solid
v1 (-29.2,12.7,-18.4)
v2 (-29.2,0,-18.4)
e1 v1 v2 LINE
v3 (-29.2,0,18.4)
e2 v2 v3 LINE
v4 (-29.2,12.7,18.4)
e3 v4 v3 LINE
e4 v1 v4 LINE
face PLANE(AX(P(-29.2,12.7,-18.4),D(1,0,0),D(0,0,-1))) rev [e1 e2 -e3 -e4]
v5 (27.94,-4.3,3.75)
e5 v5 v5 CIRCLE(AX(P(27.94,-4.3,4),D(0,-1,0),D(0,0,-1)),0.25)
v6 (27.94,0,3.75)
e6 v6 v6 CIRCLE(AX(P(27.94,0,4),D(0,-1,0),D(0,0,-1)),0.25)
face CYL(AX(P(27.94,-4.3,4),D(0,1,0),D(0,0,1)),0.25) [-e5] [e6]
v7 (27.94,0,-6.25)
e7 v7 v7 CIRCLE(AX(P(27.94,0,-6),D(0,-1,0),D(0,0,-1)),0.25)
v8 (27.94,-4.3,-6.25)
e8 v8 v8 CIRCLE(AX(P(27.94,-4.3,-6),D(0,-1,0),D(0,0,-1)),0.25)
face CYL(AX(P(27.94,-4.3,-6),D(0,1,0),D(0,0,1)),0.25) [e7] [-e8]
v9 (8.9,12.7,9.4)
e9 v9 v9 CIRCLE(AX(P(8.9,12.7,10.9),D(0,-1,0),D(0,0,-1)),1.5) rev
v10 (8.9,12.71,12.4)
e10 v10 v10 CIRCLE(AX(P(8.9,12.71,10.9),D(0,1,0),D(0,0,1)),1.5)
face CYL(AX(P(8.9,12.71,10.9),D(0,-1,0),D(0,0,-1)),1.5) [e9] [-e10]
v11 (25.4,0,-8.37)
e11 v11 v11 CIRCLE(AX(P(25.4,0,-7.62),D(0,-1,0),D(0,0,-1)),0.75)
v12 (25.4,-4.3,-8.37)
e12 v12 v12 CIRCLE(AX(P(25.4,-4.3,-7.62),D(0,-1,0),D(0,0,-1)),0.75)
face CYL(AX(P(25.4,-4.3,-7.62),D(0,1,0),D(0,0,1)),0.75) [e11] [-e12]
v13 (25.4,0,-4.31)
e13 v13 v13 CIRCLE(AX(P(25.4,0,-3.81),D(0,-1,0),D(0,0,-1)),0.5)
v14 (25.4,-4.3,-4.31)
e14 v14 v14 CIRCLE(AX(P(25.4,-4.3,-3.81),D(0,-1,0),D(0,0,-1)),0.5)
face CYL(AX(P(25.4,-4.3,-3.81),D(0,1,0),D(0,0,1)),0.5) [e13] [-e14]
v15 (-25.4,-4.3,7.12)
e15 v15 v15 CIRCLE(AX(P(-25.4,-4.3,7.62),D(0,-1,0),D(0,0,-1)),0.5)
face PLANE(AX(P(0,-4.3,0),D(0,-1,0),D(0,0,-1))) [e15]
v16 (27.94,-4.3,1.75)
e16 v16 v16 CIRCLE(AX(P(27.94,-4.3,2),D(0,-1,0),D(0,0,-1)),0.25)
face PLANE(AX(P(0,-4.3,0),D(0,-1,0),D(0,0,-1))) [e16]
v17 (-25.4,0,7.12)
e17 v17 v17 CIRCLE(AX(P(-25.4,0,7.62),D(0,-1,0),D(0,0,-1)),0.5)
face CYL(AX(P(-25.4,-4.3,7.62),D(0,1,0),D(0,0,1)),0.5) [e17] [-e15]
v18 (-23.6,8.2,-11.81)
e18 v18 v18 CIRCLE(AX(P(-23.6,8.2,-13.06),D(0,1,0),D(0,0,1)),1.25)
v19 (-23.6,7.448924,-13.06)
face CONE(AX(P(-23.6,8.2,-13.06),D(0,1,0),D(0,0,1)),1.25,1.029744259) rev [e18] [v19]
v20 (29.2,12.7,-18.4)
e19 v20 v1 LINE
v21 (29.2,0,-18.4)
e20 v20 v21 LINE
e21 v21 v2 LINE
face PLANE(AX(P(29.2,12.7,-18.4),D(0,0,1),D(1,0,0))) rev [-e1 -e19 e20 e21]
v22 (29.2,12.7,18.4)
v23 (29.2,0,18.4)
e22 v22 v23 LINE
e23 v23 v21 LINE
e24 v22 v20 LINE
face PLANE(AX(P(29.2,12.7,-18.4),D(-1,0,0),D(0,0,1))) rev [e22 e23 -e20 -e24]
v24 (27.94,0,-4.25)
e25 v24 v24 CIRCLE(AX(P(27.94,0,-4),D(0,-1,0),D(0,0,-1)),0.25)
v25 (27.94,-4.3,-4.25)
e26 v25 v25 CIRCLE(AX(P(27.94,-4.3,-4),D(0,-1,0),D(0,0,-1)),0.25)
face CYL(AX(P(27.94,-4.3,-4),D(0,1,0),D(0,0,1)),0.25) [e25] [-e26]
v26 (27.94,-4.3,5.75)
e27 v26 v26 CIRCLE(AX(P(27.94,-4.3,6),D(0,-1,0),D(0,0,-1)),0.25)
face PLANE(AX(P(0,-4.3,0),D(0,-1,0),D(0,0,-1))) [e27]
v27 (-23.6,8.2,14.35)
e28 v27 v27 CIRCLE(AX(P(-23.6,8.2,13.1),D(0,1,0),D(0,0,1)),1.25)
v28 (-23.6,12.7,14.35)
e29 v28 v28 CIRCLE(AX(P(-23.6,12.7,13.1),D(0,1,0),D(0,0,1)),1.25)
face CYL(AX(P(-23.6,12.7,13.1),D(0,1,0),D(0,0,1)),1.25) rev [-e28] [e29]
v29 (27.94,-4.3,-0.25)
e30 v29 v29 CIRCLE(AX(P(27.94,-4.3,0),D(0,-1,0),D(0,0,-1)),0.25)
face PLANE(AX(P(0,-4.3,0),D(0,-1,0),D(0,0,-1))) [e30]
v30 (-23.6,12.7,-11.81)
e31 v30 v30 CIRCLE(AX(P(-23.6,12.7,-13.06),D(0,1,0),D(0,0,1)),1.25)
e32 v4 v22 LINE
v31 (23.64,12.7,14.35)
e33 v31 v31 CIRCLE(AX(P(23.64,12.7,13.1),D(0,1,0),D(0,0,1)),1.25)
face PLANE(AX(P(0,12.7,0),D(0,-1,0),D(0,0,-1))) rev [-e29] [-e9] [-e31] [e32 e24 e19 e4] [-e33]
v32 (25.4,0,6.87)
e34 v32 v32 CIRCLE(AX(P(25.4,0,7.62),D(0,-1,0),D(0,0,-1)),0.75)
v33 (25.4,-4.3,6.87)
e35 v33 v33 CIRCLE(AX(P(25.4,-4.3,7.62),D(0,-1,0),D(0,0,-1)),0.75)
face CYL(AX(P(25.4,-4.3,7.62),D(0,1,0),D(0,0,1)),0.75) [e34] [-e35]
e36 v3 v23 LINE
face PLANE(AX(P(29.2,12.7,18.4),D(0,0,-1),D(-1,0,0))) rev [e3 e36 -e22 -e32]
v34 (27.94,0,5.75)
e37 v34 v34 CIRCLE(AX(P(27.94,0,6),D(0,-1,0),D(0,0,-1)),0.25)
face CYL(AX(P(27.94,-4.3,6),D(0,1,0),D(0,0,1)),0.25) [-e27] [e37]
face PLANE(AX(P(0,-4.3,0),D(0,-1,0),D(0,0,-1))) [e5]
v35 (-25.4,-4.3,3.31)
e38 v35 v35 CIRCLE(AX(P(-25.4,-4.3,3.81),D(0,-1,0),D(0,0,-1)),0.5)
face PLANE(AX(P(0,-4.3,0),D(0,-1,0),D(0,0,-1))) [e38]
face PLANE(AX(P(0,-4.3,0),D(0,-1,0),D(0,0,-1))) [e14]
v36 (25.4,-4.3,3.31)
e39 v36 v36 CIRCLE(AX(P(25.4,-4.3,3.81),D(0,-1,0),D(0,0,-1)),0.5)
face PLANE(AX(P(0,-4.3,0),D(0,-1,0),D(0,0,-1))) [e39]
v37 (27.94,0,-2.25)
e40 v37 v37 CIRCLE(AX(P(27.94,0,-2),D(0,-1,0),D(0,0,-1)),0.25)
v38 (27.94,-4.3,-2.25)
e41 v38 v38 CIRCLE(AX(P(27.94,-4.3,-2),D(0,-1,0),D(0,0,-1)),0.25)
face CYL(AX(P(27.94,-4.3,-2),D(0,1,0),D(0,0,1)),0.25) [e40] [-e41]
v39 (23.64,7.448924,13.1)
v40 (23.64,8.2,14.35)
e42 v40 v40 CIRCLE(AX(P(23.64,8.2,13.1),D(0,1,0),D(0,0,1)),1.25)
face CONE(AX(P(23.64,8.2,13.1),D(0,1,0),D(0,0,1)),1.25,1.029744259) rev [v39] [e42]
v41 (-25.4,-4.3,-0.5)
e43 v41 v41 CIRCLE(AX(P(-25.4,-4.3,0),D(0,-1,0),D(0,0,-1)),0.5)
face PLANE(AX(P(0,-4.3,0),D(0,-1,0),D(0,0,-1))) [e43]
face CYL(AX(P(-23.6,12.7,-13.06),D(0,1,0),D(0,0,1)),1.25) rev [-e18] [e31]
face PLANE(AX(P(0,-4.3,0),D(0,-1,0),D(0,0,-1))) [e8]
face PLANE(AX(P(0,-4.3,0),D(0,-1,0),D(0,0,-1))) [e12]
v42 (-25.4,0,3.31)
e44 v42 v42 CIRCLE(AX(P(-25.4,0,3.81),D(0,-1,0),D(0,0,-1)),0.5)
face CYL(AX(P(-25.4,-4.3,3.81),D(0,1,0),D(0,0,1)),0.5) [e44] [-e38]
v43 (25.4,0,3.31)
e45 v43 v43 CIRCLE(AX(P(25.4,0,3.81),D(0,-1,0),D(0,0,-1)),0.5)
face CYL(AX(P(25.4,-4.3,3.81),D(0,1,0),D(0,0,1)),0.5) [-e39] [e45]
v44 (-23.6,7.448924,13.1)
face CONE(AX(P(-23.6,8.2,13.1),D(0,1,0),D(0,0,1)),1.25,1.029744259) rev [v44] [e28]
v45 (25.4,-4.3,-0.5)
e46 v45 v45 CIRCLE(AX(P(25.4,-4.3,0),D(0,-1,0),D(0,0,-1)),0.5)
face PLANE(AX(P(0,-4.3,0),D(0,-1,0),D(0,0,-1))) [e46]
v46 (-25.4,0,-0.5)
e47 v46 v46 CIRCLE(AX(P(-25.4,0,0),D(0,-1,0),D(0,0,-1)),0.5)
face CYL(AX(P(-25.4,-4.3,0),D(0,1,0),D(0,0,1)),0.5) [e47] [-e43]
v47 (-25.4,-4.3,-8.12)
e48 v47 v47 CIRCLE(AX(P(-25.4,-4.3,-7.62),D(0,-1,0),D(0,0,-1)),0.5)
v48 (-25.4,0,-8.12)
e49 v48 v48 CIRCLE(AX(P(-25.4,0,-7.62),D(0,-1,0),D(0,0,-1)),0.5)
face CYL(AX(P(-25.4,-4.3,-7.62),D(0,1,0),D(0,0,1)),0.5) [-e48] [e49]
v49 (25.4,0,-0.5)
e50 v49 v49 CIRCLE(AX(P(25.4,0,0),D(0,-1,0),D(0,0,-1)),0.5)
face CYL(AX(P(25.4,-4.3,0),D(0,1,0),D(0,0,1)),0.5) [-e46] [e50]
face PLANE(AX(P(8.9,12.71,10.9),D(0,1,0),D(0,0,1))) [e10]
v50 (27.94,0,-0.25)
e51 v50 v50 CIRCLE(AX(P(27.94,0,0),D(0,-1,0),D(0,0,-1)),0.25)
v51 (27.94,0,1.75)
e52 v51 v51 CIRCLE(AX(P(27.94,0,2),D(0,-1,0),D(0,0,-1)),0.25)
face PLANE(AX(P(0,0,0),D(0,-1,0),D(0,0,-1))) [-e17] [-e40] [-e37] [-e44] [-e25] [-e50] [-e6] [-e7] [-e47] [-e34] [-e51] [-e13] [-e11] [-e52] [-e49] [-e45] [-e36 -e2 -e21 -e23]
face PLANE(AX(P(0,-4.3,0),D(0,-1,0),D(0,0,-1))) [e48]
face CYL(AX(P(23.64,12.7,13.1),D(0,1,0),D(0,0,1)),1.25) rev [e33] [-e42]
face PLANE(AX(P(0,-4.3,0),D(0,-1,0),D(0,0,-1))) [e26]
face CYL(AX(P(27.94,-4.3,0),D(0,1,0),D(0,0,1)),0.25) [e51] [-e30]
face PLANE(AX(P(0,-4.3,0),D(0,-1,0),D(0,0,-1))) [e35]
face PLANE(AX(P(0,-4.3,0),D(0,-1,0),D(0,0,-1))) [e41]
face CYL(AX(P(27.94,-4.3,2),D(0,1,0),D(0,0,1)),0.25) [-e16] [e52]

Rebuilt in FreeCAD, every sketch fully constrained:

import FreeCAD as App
import Part
import Sketcher

V = App.Vector


def add_polygon(sketch, points):
    """Adds a closed chain of lines whose ends are joined by coincident constraints."""
    first, n = sketch.GeometryCount, len(points)
    for a, b in zip(points, points[1:] + points[:1]):
        sketch.addGeometry(Part.LineSegment(App.Vector(*a, 0), App.Vector(*b, 0)), False)
    for i in range(n):
        sketch.addConstraint(Sketcher.Constraint("Coincident", first + i, 2, first + (i + 1) % n, 1))

doc = App.newDocument("Part")
body = doc.addObject("PartDesign::Body", "Body")

# Sketch on XZ plane
sketch1 = doc.addObject("Sketcher::SketchObject", "Sketch")
body.addObject(sketch1)
sketch1.AttachmentSupport = (doc.XZ_Plane, [""])
sketch1.MapMode = "FlatFace"
add_polygon(sketch1, [(-29, -18), (-29, 18), (29, 18), (29, -18)])  # lines 0-3
sketch1.addConstraint([
    Sketcher.Constraint("Vertical", 0),
    Sketcher.Constraint("Horizontal", 1),
    Sketcher.Constraint("Vertical", 2),
    Sketcher.Constraint("Horizontal", 3),
    Sketcher.Constraint("Symmetric", 0, 2, 2, 2, -1, 1),
    Sketcher.Constraint("DistanceX", 1, 1, 1, 2, 58.4),
    Sketcher.Constraint("DistanceY", 0, 1, 0, 2, 36.8),
])
pad1 = doc.addObject("PartDesign::Pad", "Pad")
body.addObject(pad1)
pad1.Profile = sketch1
pad1.Length = 12.7
pad1.Reversed = True

# Sketch on XZ plane
sketch2 = doc.addObject("Sketcher::SketchObject", "Sketch001")
body.addObject(sketch2)
sketch2.AttachmentSupport = (doc.XZ_Plane, [""])
sketch2.MapMode = "FlatFace"
sketch2.addGeometry([
    Part.Circle(V(-25.4, 0, 0), V(0, 0, 1), 0.5),  # 0
    Part.Circle(V(-25.4, 3.81, 0), V(0, 0, 1), 0.5),  # 1
    Part.Circle(V(-25.4, 7.62, 0), V(0, 0, 1), 0.5),  # 2
    Part.Circle(V(-25.4, -7.62, 0), V(0, 0, 1), 0.5),  # 3
    Part.Circle(V(25.4, 7.62, 0), V(0, 0, 1), 0.75),  # 4
    Part.Circle(V(25.4, 3.81, 0), V(0, 0, 1), 0.5),  # 5
    Part.Circle(V(25.4, 0, 0), V(0, 0, 1), 0.5),  # 6
    Part.Circle(V(25.4, -3.81, 0), V(0, 0, 1), 0.5),  # 7
    Part.Circle(V(25.4, -7.62, 0), V(0, 0, 1), 0.75),  # 8
    Part.Circle(V(27.94, 0, 0), V(0, 0, 1), 0.25),  # 9
    Part.Circle(V(27.94, -2, 0), V(0, 0, 1), 0.25),  # 10
    Part.Circle(V(27.94, -4, 0), V(0, 0, 1), 0.25),  # 11
    Part.Circle(V(27.94, -6, 0), V(0, 0, 1), 0.25),  # 12
    Part.Circle(V(27.94, 2, 0), V(0, 0, 1), 0.25),  # 13
    Part.Circle(V(27.94, 4, 0), V(0, 0, 1), 0.25),  # 14
    Part.Circle(V(27.94, 6, 0), V(0, 0, 1), 0.25),  # 15
], False)
sketch2.addConstraint([
    Sketcher.Constraint("Equal", 0, 1),
    Sketcher.Constraint("Equal", 1, 2),
    Sketcher.Constraint("Equal", 2, 3),
    Sketcher.Constraint("Equal", 3, 5),
    Sketcher.Constraint("Equal", 5, 6),
    Sketcher.Constraint("Equal", 6, 7),
    Sketcher.Constraint("Equal", 4, 8),
    Sketcher.Constraint("Equal", 9, 10),
    Sketcher.Constraint("Equal", 10, 11),
    Sketcher.Constraint("Equal", 11, 12),
    Sketcher.Constraint("Equal", 12, 13),
    Sketcher.Constraint("Equal", 13, 14),
    Sketcher.Constraint("Equal", 14, 15),
    Sketcher.Constraint("Symmetric", 3, 3, 4, 3, -1, 1),
    Sketcher.Constraint("Symmetric", 0, 3, 6, 3, -1, 1),
    Sketcher.Constraint("Symmetric", 1, 3, 7, 3, -1, 1),
    Sketcher.Constraint("Symmetric", 2, 3, 8, 3, -1, 1),
    Sketcher.Constraint("Symmetric", 2, 3, 4, 3, -2),
    Sketcher.Constraint("Symmetric", 1, 3, 5, 3, -2),
    Sketcher.Constraint("Symmetric", 10, 3, 13, 3, -1),
    Sketcher.Constraint("Symmetric", 11, 3, 14, 3, -1),
    Sketcher.Constraint("Symmetric", 12, 3, 15, 3, -1),
    Sketcher.Constraint("PointOnObject", 0, 3, -1),
    Sketcher.Constraint("PointOnObject", 9, 3, -1),
    Sketcher.Constraint("Vertical", 0, 3, 1, 3),
    Sketcher.Constraint("Vertical", 1, 3, 2, 3),
    Sketcher.Constraint("Vertical", 9, 3, 10, 3),
    Sketcher.Constraint("Vertical", 10, 3, 11, 3),
    Sketcher.Constraint("Vertical", 11, 3, 12, 3),
    Sketcher.Constraint("Diameter", 0, 1.0),
    Sketcher.Constraint("Diameter", 4, 1.5),
    Sketcher.Constraint("Diameter", 9, 0.5),
    Sketcher.Constraint("DistanceY", 10, 3, -1, 1, 2.0),
    Sketcher.Constraint("DistanceY", 11, 3, -1, 1, 4.0),
    Sketcher.Constraint("DistanceY", 12, 3, -1, 1, 6.0),
    Sketcher.Constraint("DistanceX", 0, 3, -1, 1, 25.4),
    Sketcher.Constraint("DistanceY", -1, 1, 1, 3, 3.81),
    Sketcher.Constraint("DistanceY", -1, 1, 2, 3, 7.62),
    Sketcher.Constraint("DistanceX", -1, 1, 9, 3, 27.94),
])
pad2 = doc.addObject("PartDesign::Pad", "Pad001")
body.addObject(pad2)
pad2.Profile = sketch2
pad2.Length = 4.3

# Sketch on XZ plane
sketch3 = doc.addObject("Sketcher::SketchObject", "Sketch002")
body.addObject(sketch3)
sketch3.AttachmentSupport = (doc.XZ_Plane, [""])
sketch3.MapMode = "FlatFace"
sketch3.AttachmentOffset = App.Placement(V(0, 0, -12.7), App.Rotation())
sketch3.addGeometry([
    Part.Circle(V(-23.6, -13.1, 0), V(0, 0, 1), 1.2),
    Part.Circle(V(-23.6, 13.1, 0), V(0, 0, 1), 1.2),
    Part.Circle(V(23.6, 13.1, 0), V(0, 0, 1), 1.2),
], False)
sketch3.addConstraint([
    Sketcher.Constraint("Equal", 0, 1),
    Sketcher.Constraint("Equal", 1, 2),
    Sketcher.Constraint("Horizontal", 1, 3, 2, 3),
    Sketcher.Constraint("Vertical", 0, 3, 1, 3),
    Sketcher.Constraint("Diameter", 0, 2.5),
    Sketcher.Constraint("DistanceX", 0, 3, -1, 1, 23.6),
    Sketcher.Constraint("DistanceY", -1, 1, 1, 3, 13.1),
    Sketcher.Constraint("DistanceY", 0, 3, -1, 1, 13.06),
    Sketcher.Constraint("DistanceX", -1, 1, 2, 3, 23.64),
])
doc.recompute()
hole = doc.addObject("PartDesign::Hole", "Hole")
body.addObject(hole)
hole.Profile = sketch3
hole.ThreadType = "None"
hole.Diameter = 2.5
hole.DepthType = "Dimension"
hole.Depth = 4.5
hole.DrillPoint = "Angled"
hole.DrillPointAngle = 118
hole.Reversed = True

# Sketch on XZ plane
sketch4 = doc.addObject("Sketcher::SketchObject", "Sketch003")
body.addObject(sketch4)
sketch4.AttachmentSupport = (doc.XZ_Plane, [""])
sketch4.MapMode = "FlatFace"
sketch4.AttachmentOffset = App.Placement(V(0, 0, -12.7), App.Rotation())
sketch4.addGeometry(Part.Circle(V(8.9, 10.9, 0), V(0, 0, 1), 1.5), False)
sketch4.addConstraint([
    Sketcher.Constraint("Diameter", 0, 3.0),
    Sketcher.Constraint("DistanceX", -1, 1, 0, 3, 8.9),
    Sketcher.Constraint("DistanceY", -1, 1, 0, 3, 10.9),
])
pad3 = doc.addObject("PartDesign::Pad", "Pad002")
body.addObject(pad3)
pad3.Profile = sketch4
pad3.Length = 0.01
pad3.Reversed = True

doc.recompute()
